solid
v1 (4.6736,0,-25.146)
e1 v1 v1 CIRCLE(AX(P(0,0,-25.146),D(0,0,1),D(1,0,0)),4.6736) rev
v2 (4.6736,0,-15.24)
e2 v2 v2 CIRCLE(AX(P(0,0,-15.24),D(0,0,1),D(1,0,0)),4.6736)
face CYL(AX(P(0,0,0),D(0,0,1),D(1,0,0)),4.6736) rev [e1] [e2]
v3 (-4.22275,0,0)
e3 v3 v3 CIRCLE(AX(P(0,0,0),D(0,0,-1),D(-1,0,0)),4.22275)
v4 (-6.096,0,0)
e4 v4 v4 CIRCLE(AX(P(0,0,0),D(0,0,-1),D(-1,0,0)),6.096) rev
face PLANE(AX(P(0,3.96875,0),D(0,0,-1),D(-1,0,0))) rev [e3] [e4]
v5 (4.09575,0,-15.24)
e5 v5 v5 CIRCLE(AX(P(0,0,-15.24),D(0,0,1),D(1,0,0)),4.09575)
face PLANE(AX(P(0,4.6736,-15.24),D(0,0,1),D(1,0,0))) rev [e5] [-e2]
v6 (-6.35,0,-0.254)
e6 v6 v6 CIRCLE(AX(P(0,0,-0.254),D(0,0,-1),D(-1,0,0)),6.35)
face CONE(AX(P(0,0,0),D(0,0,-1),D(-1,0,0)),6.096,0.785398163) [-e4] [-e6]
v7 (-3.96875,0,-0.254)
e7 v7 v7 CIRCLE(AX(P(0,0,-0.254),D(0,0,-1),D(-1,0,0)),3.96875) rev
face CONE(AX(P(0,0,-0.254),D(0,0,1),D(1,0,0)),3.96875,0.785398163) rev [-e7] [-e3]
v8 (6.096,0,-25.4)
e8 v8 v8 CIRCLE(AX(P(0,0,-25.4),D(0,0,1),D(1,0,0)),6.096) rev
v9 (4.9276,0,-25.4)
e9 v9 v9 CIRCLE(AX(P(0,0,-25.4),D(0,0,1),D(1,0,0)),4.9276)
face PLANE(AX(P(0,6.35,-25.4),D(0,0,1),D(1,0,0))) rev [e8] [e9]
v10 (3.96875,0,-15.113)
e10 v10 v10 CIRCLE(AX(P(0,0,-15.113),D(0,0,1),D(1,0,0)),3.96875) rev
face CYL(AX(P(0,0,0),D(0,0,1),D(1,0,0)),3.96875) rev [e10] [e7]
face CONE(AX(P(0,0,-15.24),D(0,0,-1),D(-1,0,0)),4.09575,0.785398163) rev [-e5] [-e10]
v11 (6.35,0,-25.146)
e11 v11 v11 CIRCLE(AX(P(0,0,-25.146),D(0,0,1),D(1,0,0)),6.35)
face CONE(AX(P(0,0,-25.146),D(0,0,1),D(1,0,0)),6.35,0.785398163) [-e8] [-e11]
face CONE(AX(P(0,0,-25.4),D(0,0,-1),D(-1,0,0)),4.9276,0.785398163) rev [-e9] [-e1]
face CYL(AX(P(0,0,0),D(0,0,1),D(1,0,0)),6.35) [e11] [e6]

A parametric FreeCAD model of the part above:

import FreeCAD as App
import Part
import Sketcher

V = App.Vector
Q = App.Units.Quantity


def edges_at(feature, points):
    """Names of the edges that pass closest to the given points."""
    edges = feature.Shape.Edges
    near = lambda p: min(range(len(edges)), key=lambda i: edges[i].distToShape(Part.Vertex(*p))[0])
    return sorted({f"Edge{near(p) + 1}" for p in points})

doc = App.newDocument("Part")
body = doc.addObject("PartDesign::Body", "Body")

# Sketch on YZ plane
sketch1 = doc.addObject("Sketcher::SketchObject", "Sketch")
body.addObject(sketch1)
sketch1.AttachmentSupport = (doc.YZ_Plane, [""])
sketch1.MapMode = "FlatFace"
sketch1.addGeometry(Part.LineSegment(V(6.3, -25.4, 0), V(6.3, 0, 0)), False)
sketch1.addGeometry(Part.LineSegment(V(6.3, 0, 0), V(4, 0, 0)), False)
sketch1.addGeometry(Part.LineSegment(V(4, 0, 0), V(4, -15.2, 0)), False)
sketch1.addGeometry(Part.LineSegment(V(4, -15.2, 0), V(4.7, -15.2, 0)), False)
sketch1.addGeometry(Part.LineSegment(V(4.7, -15.2, 0), V(4.7, -25.4, 0)), False)
sketch1.addGeometry(Part.LineSegment(V(4.7, -25.4, 0), V(6.3, -25.4, 0)), False)
sketch1.addConstraint(Sketcher.Constraint("Coincident", 0, 2, 1, 1))
sketch1.addConstraint(Sketcher.Constraint("Coincident", 1, 2, 2, 1))
sketch1.addConstraint(Sketcher.Constraint("Coincident", 2, 2, 3, 1))
sketch1.addConstraint(Sketcher.Constraint("Coincident", 3, 2, 4, 1))
sketch1.addConstraint(Sketcher.Constraint("Coincident", 4, 2, 5, 1))
sketch1.addConstraint(Sketcher.Constraint("Coincident", 5, 2, 0, 1))
sketch1.addConstraint(Sketcher.Constraint("Vertical", 0))
sketch1.addConstraint(Sketcher.Constraint("Horizontal", 1))
sketch1.addConstraint(Sketcher.Constraint("Vertical", 2))
sketch1.addConstraint(Sketcher.Constraint("Horizontal", 3))
sketch1.addConstraint(Sketcher.Constraint("Vertical", 4))
sketch1.addConstraint(Sketcher.Constraint("Horizontal", 5))
sketch1.addConstraint(Sketcher.Constraint("PointOnObject", 0, 2, -1))
sketch1.addConstraint(Sketcher.Constraint("DistanceY", 0, 1, 0, 2, Q("1 in")))
sketch1.addConstraint(Sketcher.Constraint("DistanceY", 2, 2, 2, 1, Q("0.6 in")))
sketch1.addConstraint(Sketcher.Constraint("DistanceX", 1, 2, 1, 1, Q("0.09375 in")))
sketch1.addConstraint(Sketcher.Constraint("DistanceX", 5, 1, 5, 2, Q("0.066 in")))
sketch1.addConstraint(Sketcher.Constraint("DistanceX", -1, 1, 0, 2, Q("0.25 in")))
revolution = doc.addObject("PartDesign::Revolution", "Revolution")
body.addObject(revolution)
revolution.Profile = sketch1
revolution.ReferenceAxis = (sketch1, ["V_Axis"])
revolution.Angle = 360
doc.recompute()

chamfer = doc.addObject("PartDesign::Chamfer", "Chamfer")
body.addObject(chamfer)
chamfer.Base = (revolution, edges_at(revolution, [
    (-3.969, 0, 0),
    (-4.674, 0, -25.4),
    (-6.35, 0, -25.4),
    (-6.35, 0, 0),
]))
chamfer.Size = Q("0.01 in")
doc.recompute()

chamfer2 = doc.addObject("PartDesign::Chamfer", "Chamfer001")
body.addObject(chamfer2)
chamfer2.Base = (chamfer, edges_at(chamfer, [(-3.969, 0, -15.24)]))
chamfer2.Size = Q("0.005 in")

doc.recompute()
